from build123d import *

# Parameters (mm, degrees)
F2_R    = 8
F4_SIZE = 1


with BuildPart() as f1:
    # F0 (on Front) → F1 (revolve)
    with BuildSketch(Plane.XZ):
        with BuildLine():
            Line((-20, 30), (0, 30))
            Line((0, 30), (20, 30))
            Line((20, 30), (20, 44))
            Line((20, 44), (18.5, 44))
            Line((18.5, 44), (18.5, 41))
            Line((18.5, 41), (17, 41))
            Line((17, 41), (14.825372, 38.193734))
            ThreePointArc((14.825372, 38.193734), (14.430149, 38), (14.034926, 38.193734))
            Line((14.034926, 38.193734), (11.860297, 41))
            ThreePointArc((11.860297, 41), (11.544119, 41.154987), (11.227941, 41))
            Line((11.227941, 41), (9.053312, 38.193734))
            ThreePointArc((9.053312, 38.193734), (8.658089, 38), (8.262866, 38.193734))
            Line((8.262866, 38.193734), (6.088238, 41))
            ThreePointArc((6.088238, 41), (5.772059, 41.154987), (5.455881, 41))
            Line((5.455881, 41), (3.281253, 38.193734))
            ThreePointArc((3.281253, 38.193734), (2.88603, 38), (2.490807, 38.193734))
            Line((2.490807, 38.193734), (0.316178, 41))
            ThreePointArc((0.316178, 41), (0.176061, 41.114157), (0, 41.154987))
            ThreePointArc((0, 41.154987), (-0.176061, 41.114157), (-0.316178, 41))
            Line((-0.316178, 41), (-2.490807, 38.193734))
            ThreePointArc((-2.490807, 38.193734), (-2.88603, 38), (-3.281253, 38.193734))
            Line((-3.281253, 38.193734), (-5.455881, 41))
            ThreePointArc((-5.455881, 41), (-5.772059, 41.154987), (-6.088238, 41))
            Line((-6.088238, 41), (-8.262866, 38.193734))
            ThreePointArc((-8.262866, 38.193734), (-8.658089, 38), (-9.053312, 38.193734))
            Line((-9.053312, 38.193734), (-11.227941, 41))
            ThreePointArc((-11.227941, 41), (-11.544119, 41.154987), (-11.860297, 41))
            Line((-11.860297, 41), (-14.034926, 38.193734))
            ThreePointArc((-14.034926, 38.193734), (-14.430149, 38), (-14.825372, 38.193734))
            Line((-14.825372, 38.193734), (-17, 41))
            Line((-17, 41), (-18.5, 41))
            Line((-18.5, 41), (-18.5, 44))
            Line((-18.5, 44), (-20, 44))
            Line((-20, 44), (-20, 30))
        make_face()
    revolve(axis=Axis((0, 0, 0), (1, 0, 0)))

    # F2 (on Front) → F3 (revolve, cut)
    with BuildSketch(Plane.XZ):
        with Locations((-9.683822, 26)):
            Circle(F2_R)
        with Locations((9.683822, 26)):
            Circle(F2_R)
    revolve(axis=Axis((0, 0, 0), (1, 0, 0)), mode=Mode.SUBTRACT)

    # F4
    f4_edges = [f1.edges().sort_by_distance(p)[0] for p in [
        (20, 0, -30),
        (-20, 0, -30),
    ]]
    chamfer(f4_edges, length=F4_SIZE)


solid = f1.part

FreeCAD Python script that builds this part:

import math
import FreeCAD as App
import Part
import Sketcher
Q = App.Units.Quantity


def edges_at(feature, points):
    """Names of the edges that pass closest to the given points."""
    edges = feature.Shape.Edges
    near = lambda p: min(range(len(edges)), key=lambda i: edges[i].distToShape(Part.Vertex(*p))[0])
    return sorted({f"Edge{near(p) + 1}" for p in points})

doc = App.newDocument("Part")
body = doc.addObject("PartDesign::Body", "Body")

sketch1 = doc.addObject("Sketcher::SketchObject", "Sketch")
body.addObject(sketch1)
sketch1.AttachmentSupport = (doc.XZ_Plane, [""])
sketch1.MapMode = "FlatFace"
sketch1.addGeometry([
    Part.LineSegment(App.Vector(-20, 30, 0), App.Vector(20, 30, 0)),
    Part.LineSegment(App.Vector(20, 30, 0), App.Vector(20, 44, 0)),
    Part.LineSegment(App.Vector(20, 44, 0), App.Vector(18.5, 44, 0)),
    Part.LineSegment(App.Vector(18.5, 44, 0), App.Vector(18.5, 41, 0)),
    Part.LineSegment(App.Vector(18.5, 41, 0), App.Vector(17, 41, 0)),
    Part.LineSegment(App.Vector(17, 41, 0), App.Vector(14.825372, 38.193734, 0)),
    Part.ArcOfCircle(Part.Circle(App.Vector(14.430149, 38.5, 0), App.Vector(0, 0, 1), 0.5), math.radians(-142.227179), math.radians(-37.772821)),
    Part.LineSegment(App.Vector(14.034926, 38.193734, 0), App.Vector(11.860297, 41, 0)),
    Part.ArcOfCircle(Part.Circle(App.Vector(11.544119, 40.754987, 0), App.Vector(0, 0, 1), 0.4), math.radians(37.772822), math.radians(142.227178)),
    Part.LineSegment(App.Vector(11.227941, 41, 0), App.Vector(9.053312, 38.193734, 0)),
    Part.ArcOfCircle(Part.Circle(App.Vector(8.658089, 38.5, 0), App.Vector(0, 0, 1), 0.5), math.radians(-142.227179), math.radians(-37.772821)),
    Part.LineSegment(App.Vector(8.262866, 38.193734, 0), App.Vector(6.088238, 41, 0)),
    Part.ArcOfCircle(Part.Circle(App.Vector(5.77206, 40.754986, 0), App.Vector(0, 0, 1), 0.400001), math.radians(37.772894), math.radians(142.227106)),
    Part.LineSegment(App.Vector(5.455881, 41, 0), App.Vector(3.281253, 38.193734, 0)),
    Part.ArcOfCircle(Part.Circle(App.Vector(2.88603, 38.5, 0), App.Vector(0, 0, 1), 0.5), math.radians(-142.227179), math.radians(-37.772821)),
    Part.LineSegment(App.Vector(2.490807, 38.193734, 0), App.Vector(0.316178, 41, 0)),
    Part.ArcOfCircle(Part.Circle(App.Vector(0.000003, 40.754994, 0), App.Vector(0, 0, 1), 0.399993), math.radians(37.772365), math.radians(90.000457)),
    Part.ArcOfCircle(Part.Circle(App.Vector(-0.000003, 40.754994, 0), App.Vector(0, 0, 1), 0.399993), math.radians(89.999543), math.radians(142.227635)),
    Part.LineSegment(App.Vector(-0.316178, 41, 0), App.Vector(-2.490807, 38.193734, 0)),
    Part.ArcOfCircle(Part.Circle(App.Vector(-2.88603, 38.5, 0), App.Vector(0, 0, 1), 0.5), math.radians(-142.227179), math.radians(-37.772821)),
    Part.LineSegment(App.Vector(-3.281253, 38.193734, 0), App.Vector(-5.455881, 41, 0)),
    Part.ArcOfCircle(Part.Circle(App.Vector(-5.77206, 40.754986, 0), App.Vector(0, 0, 1), 0.400001), math.radians(37.772894), math.radians(142.227106)),
    Part.LineSegment(App.Vector(-6.088238, 41, 0), App.Vector(-8.262866, 38.193734, 0)),
    Part.ArcOfCircle(Part.Circle(App.Vector(-8.658089, 38.5, 0), App.Vector(0, 0, 1), 0.5), math.radians(-142.227179), math.radians(-37.772821)),
    Part.LineSegment(App.Vector(-9.053312, 38.193734, 0), App.Vector(-11.227941, 41, 0)),
    Part.ArcOfCircle(Part.Circle(App.Vector(-11.544119, 40.754987, 0), App.Vector(0, 0, 1), 0.4), math.radians(37.772822), math.radians(142.227178)),
    Part.LineSegment(App.Vector(-11.860297, 41, 0), App.Vector(-14.034926, 38.193734, 0)),
    Part.ArcOfCircle(Part.Circle(App.Vector(-14.430149, 38.5, 0), App.Vector(0, 0, 1), 0.5), math.radians(-142.227179), math.radians(-37.772821)),
    Part.LineSegment(App.Vector(-14.825372, 38.193734, 0), App.Vector(-17, 41, 0)),
    Part.LineSegment(App.Vector(-17, 41, 0), App.Vector(-18.5, 41, 0)),
    Part.LineSegment(App.Vector(-18.5, 41, 0), App.Vector(-18.5, 44, 0)),
    Part.LineSegment(App.Vector(-18.5, 44, 0), App.Vector(-20, 44, 0)),
    Part.LineSegment(App.Vector(-20, 44, 0), App.Vector(-20, 30, 0)),
], False)
sketch1.addConstraint([
    Sketcher.Constraint("Coincident", 0, 2, 1, 1),
    Sketcher.Constraint("Coincident", 1, 2, 2, 1),
    Sketcher.Constraint("Coincident", 2, 2, 3, 1),
    Sketcher.Constraint("Coincident", 3, 2, 4, 1),
    Sketcher.Constraint("Coincident", 4, 2, 5, 1),
    Sketcher.Constraint("Tangent", 5, 2, 6, 2),
    Sketcher.Constraint("Tangent", 6, 1, 7, 1),
    Sketcher.Constraint("Tangent", 7, 2, 8, 1),
    Sketcher.Constraint("Tangent", 8, 2, 9, 1),
    Sketcher.Constraint("Tangent", 9, 2, 10, 2),
    Sketcher.Constraint("Tangent", 10, 1, 11, 1),
    Sketcher.Constraint("Coincident", 11, 2, 12, 1),
    Sketcher.Constraint("Coincident", 12, 2, 13, 1),
    Sketcher.Constraint("Tangent", 13, 2, 14, 2),
    Sketcher.Constraint("Tangent", 14, 1, 15, 1),
    Sketcher.Constraint("Coincident", 15, 2, 16, 1),
    Sketcher.Constraint("Coincident", 16, 2, 17, 1),
    Sketcher.Constraint("Coincident", 17, 2, 18, 1),
    Sketcher.Constraint("Tangent", 18, 2, 19, 2),
    Sketcher.Constraint("Tangent", 19, 1, 20, 1),
    Sketcher.Constraint("Coincident", 20, 2, 21, 1),
    Sketcher.Constraint("Coincident", 21, 2, 22, 1),
    Sketcher.Constraint("Tangent", 22, 2, 23, 2),
    Sketcher.Constraint("Tangent", 23, 1, 24, 1),
    Sketcher.Constraint("Tangent", 24, 2, 25, 1),
    Sketcher.Constraint("Tangent", 25, 2, 26, 1),
    Sketcher.Constraint("Tangent", 26, 2, 27, 2),
    Sketcher.Constraint("Tangent", 27, 1, 28, 1),
    Sketcher.Constraint("Coincident", 28, 2, 29, 1),
    Sketcher.Constraint("Coincident", 29, 2, 30, 1),
    Sketcher.Constraint("Coincident", 30, 2, 31, 1),
    Sketcher.Constraint("Coincident", 31, 2, 32, 1),
    Sketcher.Constraint("Coincident", 32, 2, 0, 1),
    Sketcher.Constraint("Horizontal", 0),
    Sketcher.Constraint("Vertical", 1),
    Sketcher.Constraint("Horizontal", 2),
    Sketcher.Constraint("Vertical", 3),
    Sketcher.Constraint("Horizontal", 4),
    Sketcher.Constraint("Horizontal", 29),
    Sketcher.Constraint("Vertical", 30),
    Sketcher.Constraint("Horizontal", 31),
    Sketcher.Constraint("Vertical", 32),
    Sketcher.Constraint("Coincident", 17, 3, 16, 3),
    Sketcher.Constraint("Equal", 6, 10),
    Sketcher.Constraint("Equal", 8, 12),
    Sketcher.Constraint("Equal", 10, 14),
    Sketcher.Constraint("Equal", 14, 19),
    Sketcher.Constraint("Equal", 12, 21),
    Sketcher.Constraint("Equal", 19, 23),
    Sketcher.Constraint("Equal", 21, 25),
    Sketcher.Constraint("Equal", 23, 27),
    Sketcher.Constraint("Symmetric", 14, 3, 19, 3, -2),
    Sketcher.Constraint("Symmetric", 12, 3, 21, 3, -2),
    Sketcher.Constraint("Symmetric", 10, 3, 23, 3, -2),
    Sketcher.Constraint("Symmetric", 8, 3, 25, 3, -2),
    Sketcher.Constraint("Symmetric", 6, 3, 27, 3, -2),
    Sketcher.Constraint("Symmetric", 15, 2, 17, 2, -2),
    Sketcher.Constraint("Symmetric", 4, 2, 28, 2, -2),
    Sketcher.Constraint("Symmetric", 2, 2, 30, 2, -2),
    Sketcher.Constraint("PointOnObject", 16, 2, -2),
    Sketcher.Constraint("Parallel", 5, 9),
    Sketcher.Constraint("Parallel", 7, 11),
    Sketcher.Constraint("Parallel", 9, 13),
    Sketcher.Constraint("Parallel", 11, 15),
    Sketcher.Constraint("Parallel", 13, 18),
    Sketcher.Constraint("Horizontal", 6, 3, 10, 3),
    Sketcher.Constraint("Horizontal", 8, 3, 12, 3),
    Sketcher.Constraint("Horizontal", 10, 3, 14, 3),
    Sketcher.Constraint("Horizontal", 4, 2, 7, 2),
    Sketcher.Constraint("Horizontal", 8, 2, 11, 2),
    Sketcher.Constraint("Horizontal", 11, 2, 12, 2),
    Sketcher.Constraint("Horizontal", 12, 2, 15, 2),
    Sketcher.Constraint("Horizontal", 17, 2, 20, 2),
    Sketcher.Constraint("Horizontal", 20, 2, 21, 2),
    Sketcher.Constraint("Equal", 2, 4),
    Sketcher.Constraint("Equal", 29, 31),
    Sketcher.Constraint("Radius", 6, Q("0.5 mm")),
    Sketcher.Constraint("Radius", 8, Q("0.4 mm")),
    Sketcher.Constraint("DistanceX", 0, 1, 0, 2, Q("40 mm")),
    Sketcher.Constraint("DistanceY", 1, 1, 1, 2, Q("14 mm")),
    Sketcher.Constraint("DistanceY", 3, 2, 3, 1, Q("3 mm")),
    Sketcher.Constraint("DistanceX", 2, 2, 2, 1, Q("1.5 mm")),
    Sketcher.Constraint("DistanceY", -1, 1, 0, 2, Q("30 mm")),
    Sketcher.Constraint("DistanceY", -1, 1, 6, 3, Q("38.5 mm")),
    Sketcher.Constraint("Radius", 16, Q("0.399993 mm")),
    Sketcher.Constraint("Distance", 5, Q("3.55023 mm")),
])
revolution = doc.addObject("PartDesign::Revolution", "Revolution")
body.addObject(revolution)
revolution.Profile = sketch1
revolution.ReferenceAxis = (sketch1, ["H_Axis"])
revolution.Angle = 360

sketch2 = doc.addObject("Sketcher::SketchObject", "Sketch001")
body.addObject(sketch2)
sketch2.AttachmentSupport = (doc.XZ_Plane, [""])
sketch2.MapMode = "FlatFace"
sketch2.addGeometry([
    Part.Circle(App.Vector(-9.683822, 26, 0), App.Vector(0, 0, 1), 8),
    Part.Circle(App.Vector(9.683822, 26, 0), App.Vector(0, 0, 1), 8),
], False)
sketch2.addConstraint([
    Sketcher.Constraint("Equal", 0, 1),
    Sketcher.Constraint("Symmetric", 0, 3, 1, 3, -2),
    Sketcher.Constraint("Diameter", 0, Q("16 mm")),
    Sketcher.Constraint("DistanceY", -1, 1, 0, 3, Q("26 mm")),
    Sketcher.Constraint("DistanceX", 0, 3, -1, 1, Q("9.683822 mm")),
])
groove = doc.addObject("PartDesign::Groove", "Groove")
body.addObject(groove)
groove.Profile = sketch2
groove.ReferenceAxis = (sketch2, ["H_Axis"])
groove.Angle = 360
doc.recompute()

chamfer = doc.addObject("PartDesign::Chamfer", "Chamfer")
body.addObject(chamfer)
chamfer.Base = (groove, edges_at(groove, [(20, 0, -30), (-20, 0, -30)]))
chamfer.Size = 1

doc.recompute()
